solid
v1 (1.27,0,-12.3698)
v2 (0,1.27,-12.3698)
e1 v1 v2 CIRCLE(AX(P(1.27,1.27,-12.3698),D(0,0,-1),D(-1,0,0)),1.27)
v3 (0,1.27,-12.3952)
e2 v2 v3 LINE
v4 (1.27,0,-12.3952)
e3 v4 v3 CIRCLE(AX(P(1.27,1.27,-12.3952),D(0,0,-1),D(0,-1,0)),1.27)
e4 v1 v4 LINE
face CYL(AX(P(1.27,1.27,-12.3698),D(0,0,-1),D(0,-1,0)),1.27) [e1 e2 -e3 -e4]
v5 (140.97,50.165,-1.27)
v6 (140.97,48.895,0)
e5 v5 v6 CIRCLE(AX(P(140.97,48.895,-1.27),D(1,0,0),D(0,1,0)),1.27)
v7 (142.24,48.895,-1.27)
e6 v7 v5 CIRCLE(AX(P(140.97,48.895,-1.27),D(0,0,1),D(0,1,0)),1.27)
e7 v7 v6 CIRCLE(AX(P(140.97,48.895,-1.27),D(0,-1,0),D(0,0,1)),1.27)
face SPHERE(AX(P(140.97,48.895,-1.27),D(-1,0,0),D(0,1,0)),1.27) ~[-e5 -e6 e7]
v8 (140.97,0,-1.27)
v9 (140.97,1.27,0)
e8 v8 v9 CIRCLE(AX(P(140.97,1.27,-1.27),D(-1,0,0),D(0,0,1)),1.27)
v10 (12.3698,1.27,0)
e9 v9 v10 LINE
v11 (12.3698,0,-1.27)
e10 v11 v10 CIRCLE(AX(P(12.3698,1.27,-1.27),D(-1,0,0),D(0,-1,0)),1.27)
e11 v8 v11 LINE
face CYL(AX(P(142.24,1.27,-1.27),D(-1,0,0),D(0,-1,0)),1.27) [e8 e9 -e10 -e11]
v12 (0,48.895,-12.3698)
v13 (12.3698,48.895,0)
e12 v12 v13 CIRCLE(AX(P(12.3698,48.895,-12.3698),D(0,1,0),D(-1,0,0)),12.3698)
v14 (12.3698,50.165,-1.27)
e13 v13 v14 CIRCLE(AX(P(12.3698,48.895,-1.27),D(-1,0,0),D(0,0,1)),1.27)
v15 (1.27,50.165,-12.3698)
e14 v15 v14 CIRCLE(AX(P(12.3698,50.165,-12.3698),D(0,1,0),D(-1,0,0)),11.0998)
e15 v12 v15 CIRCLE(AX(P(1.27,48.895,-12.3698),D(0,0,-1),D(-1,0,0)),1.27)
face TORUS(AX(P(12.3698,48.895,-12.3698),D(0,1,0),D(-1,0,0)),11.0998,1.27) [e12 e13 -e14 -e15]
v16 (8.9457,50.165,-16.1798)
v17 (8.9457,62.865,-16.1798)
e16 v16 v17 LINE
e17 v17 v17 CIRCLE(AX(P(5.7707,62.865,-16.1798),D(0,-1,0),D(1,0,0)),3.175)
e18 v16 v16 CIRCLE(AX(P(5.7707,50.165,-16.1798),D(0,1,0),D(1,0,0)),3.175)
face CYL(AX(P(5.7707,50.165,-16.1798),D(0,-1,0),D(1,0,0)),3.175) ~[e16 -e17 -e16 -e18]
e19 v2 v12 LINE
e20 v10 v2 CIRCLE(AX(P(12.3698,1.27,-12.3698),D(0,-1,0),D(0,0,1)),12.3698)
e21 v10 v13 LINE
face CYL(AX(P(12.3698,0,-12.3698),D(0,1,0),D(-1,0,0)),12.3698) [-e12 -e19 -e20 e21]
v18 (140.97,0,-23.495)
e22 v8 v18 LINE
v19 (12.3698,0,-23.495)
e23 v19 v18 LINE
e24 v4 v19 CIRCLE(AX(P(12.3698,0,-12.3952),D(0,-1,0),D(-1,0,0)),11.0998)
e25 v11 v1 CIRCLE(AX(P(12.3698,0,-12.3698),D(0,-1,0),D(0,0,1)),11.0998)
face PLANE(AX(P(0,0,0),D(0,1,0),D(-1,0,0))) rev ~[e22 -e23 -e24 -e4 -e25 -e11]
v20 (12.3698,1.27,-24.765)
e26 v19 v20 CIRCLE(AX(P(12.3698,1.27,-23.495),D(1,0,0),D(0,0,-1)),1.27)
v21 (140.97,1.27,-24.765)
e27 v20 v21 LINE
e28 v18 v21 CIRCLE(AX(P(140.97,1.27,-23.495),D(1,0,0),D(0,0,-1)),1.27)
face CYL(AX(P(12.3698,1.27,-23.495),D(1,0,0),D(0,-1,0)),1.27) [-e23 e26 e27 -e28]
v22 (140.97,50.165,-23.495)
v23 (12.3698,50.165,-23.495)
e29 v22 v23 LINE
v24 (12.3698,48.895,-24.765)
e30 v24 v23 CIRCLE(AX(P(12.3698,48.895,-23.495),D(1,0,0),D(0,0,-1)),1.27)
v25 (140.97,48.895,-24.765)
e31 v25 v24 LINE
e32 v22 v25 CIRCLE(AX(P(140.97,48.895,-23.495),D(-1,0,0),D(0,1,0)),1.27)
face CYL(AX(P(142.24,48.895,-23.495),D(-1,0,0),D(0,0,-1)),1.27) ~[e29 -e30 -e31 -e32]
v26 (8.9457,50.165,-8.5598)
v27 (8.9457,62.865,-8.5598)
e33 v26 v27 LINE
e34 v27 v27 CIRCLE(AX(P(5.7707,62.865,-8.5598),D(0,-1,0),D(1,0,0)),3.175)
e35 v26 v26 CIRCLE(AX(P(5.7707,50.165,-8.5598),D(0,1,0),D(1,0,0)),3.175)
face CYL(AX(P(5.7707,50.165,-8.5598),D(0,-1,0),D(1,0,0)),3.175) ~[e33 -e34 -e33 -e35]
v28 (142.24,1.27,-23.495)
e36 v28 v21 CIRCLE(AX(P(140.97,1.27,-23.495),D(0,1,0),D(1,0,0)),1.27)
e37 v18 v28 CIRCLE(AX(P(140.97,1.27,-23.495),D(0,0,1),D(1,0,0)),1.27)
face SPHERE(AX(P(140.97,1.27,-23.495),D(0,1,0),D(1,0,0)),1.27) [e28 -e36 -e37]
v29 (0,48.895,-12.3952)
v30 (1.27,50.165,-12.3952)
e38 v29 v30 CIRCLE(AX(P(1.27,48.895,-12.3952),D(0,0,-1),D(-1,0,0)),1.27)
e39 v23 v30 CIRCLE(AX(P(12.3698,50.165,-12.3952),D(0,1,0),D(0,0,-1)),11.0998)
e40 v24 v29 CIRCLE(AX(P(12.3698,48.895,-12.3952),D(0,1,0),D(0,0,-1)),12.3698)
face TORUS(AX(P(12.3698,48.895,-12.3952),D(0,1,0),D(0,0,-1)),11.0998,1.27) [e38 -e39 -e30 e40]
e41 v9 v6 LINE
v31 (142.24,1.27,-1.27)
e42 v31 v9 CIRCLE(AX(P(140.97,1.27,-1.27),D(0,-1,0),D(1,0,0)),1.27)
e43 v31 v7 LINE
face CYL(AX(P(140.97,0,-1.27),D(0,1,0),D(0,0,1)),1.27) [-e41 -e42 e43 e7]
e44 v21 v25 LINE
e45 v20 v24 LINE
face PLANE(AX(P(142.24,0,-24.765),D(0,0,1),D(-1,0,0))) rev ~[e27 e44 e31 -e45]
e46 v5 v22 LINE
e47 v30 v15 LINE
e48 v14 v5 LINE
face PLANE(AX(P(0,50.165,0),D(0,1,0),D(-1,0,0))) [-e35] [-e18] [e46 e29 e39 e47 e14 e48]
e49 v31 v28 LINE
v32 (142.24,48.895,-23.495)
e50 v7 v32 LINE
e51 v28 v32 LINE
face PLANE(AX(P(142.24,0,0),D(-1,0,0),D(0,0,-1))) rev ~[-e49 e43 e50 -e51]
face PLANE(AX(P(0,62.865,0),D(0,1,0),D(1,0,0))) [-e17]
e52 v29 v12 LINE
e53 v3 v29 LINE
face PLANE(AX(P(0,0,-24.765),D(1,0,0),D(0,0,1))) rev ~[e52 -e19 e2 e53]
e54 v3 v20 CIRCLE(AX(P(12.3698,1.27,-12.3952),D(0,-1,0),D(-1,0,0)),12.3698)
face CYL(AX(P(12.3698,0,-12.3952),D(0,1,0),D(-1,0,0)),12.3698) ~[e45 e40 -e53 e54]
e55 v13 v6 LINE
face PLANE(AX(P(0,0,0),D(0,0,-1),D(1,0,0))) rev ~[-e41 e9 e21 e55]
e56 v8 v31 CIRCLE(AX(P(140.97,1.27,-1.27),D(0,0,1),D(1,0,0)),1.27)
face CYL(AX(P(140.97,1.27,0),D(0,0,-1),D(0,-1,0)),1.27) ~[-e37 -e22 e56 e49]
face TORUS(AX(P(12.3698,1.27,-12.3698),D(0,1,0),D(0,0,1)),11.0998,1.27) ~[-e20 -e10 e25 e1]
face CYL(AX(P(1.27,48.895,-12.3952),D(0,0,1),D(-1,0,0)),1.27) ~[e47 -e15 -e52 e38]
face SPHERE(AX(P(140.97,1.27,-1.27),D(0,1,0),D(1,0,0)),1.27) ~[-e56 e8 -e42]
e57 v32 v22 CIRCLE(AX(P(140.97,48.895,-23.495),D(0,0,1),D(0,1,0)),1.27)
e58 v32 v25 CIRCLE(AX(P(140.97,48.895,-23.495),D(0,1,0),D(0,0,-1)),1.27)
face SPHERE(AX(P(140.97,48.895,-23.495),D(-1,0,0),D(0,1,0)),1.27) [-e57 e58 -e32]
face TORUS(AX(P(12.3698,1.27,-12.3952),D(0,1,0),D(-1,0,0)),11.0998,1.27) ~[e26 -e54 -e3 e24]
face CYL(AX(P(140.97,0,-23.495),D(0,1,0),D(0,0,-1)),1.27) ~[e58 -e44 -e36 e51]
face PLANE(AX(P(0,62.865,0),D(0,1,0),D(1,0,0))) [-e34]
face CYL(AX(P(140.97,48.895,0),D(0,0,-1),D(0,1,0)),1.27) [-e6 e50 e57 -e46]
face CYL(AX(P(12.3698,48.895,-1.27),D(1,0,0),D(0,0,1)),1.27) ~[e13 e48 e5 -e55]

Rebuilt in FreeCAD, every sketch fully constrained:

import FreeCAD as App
import Part
import Sketcher

V = App.Vector
Q = App.Units.Quantity


def edges_at(feature, points):
    """Names of the edges that pass closest to the given points."""
    edges = feature.Shape.Edges
    near = lambda p: min(range(len(edges)), key=lambda i: edges[i].distToShape(Part.Vertex(*p))[0])
    return sorted({f"Edge{near(p) + 1}" for p in points})

doc = App.newDocument("Part")
body = doc.addObject("PartDesign::Body", "Body")

# Sketch on XZ plane
sketch1 = body.newObject("Sketcher::SketchObject", "Sketch")
sketch1.AttachmentSupport = (doc.getObject("XZ_Plane"), [""])
sketch1.MapMode = "FlatFace"
sketch1.addGeometry(Part.LineSegment(V(0, -24.765, 0), V(0, 0, 0)), False)
sketch1.addGeometry(Part.LineSegment(V(0, 0, 0), V(142.24, 0, 0)), False)
sketch1.addGeometry(Part.LineSegment(V(142.24, 0, 0), V(142.24, -24.765, 0)), False)
sketch1.addGeometry(Part.LineSegment(V(142.24, -24.765, 0), V(0, -24.765, 0)), False)
sketch1.addConstraint(Sketcher.Constraint("Coincident", 0, 2, 1, 1))
sketch1.addConstraint(Sketcher.Constraint("Coincident", 1, 2, 2, 1))
sketch1.addConstraint(Sketcher.Constraint("Coincident", 2, 2, 3, 1))
sketch1.addConstraint(Sketcher.Constraint("Coincident", 3, 2, 0, 1))
sketch1.addConstraint(Sketcher.Constraint("Vertical", 0))
sketch1.addConstraint(Sketcher.Constraint("Horizontal", 1))
sketch1.addConstraint(Sketcher.Constraint("Vertical", 2))
sketch1.addConstraint(Sketcher.Constraint("Horizontal", 3))
sketch1.addConstraint(Sketcher.Constraint("Coincident", 0, 2, -1, 1))
sketch1.addConstraint(Sketcher.Constraint("DistanceX", 1, 1, 1, 2, Q("5.6 in")))
sketch1.addConstraint(Sketcher.Constraint("DistanceY", 0, 1, 0, 2, Q("0.975 in")))
pad1 = body.newObject("PartDesign::Pad", "Pad")
pad1.Profile = sketch1
pad1.Length = Q("1.975 in")
pad1.Reversed = True
doc.recompute()

fillet = body.newObject("PartDesign::Fillet", "Fillet")
fillet.Base = (pad1, edges_at(pad1, [(0, 25.082, 0), (0, 25.082, -24.765)]))
fillet.Radius = Q("0.487 in")
doc.recompute()

fillet2 = body.newObject("PartDesign::Fillet", "Fillet001")
fillet2.Base = (fillet, ["Edge1"])
fillet2.UseAllEdges = True
fillet2.Radius = Q("0.05 in")

# Sketch on XZ plane
sketch2 = body.newObject("Sketcher::SketchObject", "Sketch001")
sketch2.AttachmentSupport = (doc.getObject("XZ_Plane"), [""])
sketch2.MapMode = "FlatFace"
sketch2.AttachmentOffset = App.Placement(V(0, 0, -1.975 * 25.4), App.Rotation())
sketch2.addGeometry(Part.Circle(V(5.7707, -16.1798, 0), V(0, 0, 1), 3.175), False)
sketch2.addGeometry(Part.Circle(V(5.7707, -8.5598, 0), V(0, 0, 1), 3.175), False)
sketch2.addConstraint(Sketcher.Constraint("Equal", 0, 1))
sketch2.addConstraint(Sketcher.Constraint("Vertical", 0, 3, 1, 3))
sketch2.addConstraint(Sketcher.Constraint("Diameter", 0, Q("0.25 in")))
sketch2.addConstraint(Sketcher.Constraint("DistanceY", 0, 3, 1, 3, Q("0.3 in")))
sketch2.addConstraint(Sketcher.Constraint("DistanceY", 0, 3, -1, 1, Q("0.637 in")))
sketch2.addConstraint(Sketcher.Constraint("DistanceX", -1, 1, 0, 3, Q("0.2272 in")))
pad2 = body.newObject("PartDesign::Pad", "Pad001")
pad2.Profile = sketch2
pad2.Length = Q("0.5 in")
pad2.Reversed = True

doc.recompute()
